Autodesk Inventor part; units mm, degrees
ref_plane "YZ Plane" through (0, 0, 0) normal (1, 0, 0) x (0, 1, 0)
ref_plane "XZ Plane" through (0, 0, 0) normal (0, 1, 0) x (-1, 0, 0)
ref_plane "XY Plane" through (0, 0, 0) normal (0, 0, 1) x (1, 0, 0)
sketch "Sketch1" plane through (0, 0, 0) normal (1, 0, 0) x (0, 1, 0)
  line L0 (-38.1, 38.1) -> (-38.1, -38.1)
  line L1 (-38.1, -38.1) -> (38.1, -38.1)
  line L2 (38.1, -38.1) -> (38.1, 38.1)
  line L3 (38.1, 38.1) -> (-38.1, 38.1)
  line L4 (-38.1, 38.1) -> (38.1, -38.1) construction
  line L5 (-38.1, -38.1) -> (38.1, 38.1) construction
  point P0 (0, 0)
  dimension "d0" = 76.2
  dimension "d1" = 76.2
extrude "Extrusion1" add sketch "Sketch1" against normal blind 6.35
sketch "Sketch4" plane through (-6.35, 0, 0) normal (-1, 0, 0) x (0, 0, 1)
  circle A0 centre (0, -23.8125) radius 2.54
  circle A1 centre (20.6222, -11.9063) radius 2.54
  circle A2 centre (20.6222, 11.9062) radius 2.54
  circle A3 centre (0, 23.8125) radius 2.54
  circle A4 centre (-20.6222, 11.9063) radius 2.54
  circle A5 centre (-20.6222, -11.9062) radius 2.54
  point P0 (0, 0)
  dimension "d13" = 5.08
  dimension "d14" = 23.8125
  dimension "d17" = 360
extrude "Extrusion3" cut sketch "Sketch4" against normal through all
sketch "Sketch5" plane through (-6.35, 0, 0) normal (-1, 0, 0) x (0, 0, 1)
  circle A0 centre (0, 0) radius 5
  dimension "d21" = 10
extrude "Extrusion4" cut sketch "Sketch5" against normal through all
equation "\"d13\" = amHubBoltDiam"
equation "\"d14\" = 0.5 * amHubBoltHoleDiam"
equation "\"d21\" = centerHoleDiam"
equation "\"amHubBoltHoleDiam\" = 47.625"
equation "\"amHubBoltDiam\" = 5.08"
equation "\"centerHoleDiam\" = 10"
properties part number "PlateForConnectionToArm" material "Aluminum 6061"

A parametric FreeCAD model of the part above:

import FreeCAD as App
import Part
import Sketcher

V = App.Vector
Q = App.Units.Quantity

doc = App.newDocument("Part")
params = doc.addObject("Spreadsheet::Sheet", "Params")
for row, (alias, value) in enumerate([
    ("sketch1_width", "3 in"),
    ("pad1_length", "0.25 in"),
    ("sketch2_diameter", "0.2 in"),
], start=1):
    params.set(f"A{row}", alias)
    params.set(f"B{row}", "=" + value)
    params.setAlias(f"B{row}", alias)

body = doc.addObject("PartDesign::Body", "Body")

sketch1 = body.newObject("Sketcher::SketchObject", "Sketch")
sketch1.AttachmentSupport = (doc.getObject("YZ_Plane"), [""])
sketch1.MapMode = "FlatFace"
sketch1.addGeometry(Part.LineSegment(V(38, 38, 0), V(-38, 38, 0)), False)
sketch1.addGeometry(Part.LineSegment(V(-38, 38, 0), V(-38, -38, 0)), False)
sketch1.addGeometry(Part.LineSegment(V(-38, -38, 0), V(38, -38, 0)), False)
sketch1.addGeometry(Part.LineSegment(V(38, -38, 0), V(38, 38, 0)), False)
sketch1.addConstraint(Sketcher.Constraint("Coincident", 0, 2, 1, 1))
sketch1.addConstraint(Sketcher.Constraint("Coincident", 1, 2, 2, 1))
sketch1.addConstraint(Sketcher.Constraint("Coincident", 2, 2, 3, 1))
sketch1.addConstraint(Sketcher.Constraint("Coincident", 3, 2, 0, 1))
sketch1.addConstraint(Sketcher.Constraint("Horizontal", 0))
sketch1.addConstraint(Sketcher.Constraint("Vertical", 1))
sketch1.addConstraint(Sketcher.Constraint("Horizontal", 2))
sketch1.addConstraint(Sketcher.Constraint("Vertical", 3))
sketch1.addConstraint(Sketcher.Constraint("Symmetric", 0, 2, 2, 2, -1, 1))
sketch1.addConstraint(Sketcher.Constraint("Equal", 2, 1))
sketch1.addConstraint(Sketcher.Constraint("DistanceX", 0, 2, 0, 1, Q("3 in")))
sketch1.setExpression("Constraints[10]", "Params.sketch1_width")
pad1 = body.newObject("PartDesign::Pad", "Pad")
pad1.Profile = sketch1
pad1.setExpression("Length", "Params.pad1_length")
pad1.Reversed = True

sketch2 = body.newObject("Sketcher::SketchObject", "Sketch001")
sketch2.AttachmentSupport = (doc.getObject("YZ_Plane"), [""])
sketch2.MapMode = "FlatFace"
sketch2.AttachmentOffset = App.Placement(V(0, 0, -0.25 * 25.4), App.Rotation())
sketch2.addGeometry(Part.Circle(V(-23.8, 0, 0), V(0, 0, 1), 2.5), False)
sketch2.addGeometry(Part.Circle(V(-11.9, 20.6, 0), V(0, 0, 1), 2.5), False)
sketch2.addGeometry(Part.Circle(V(11.9, 20.6, 0), V(0, 0, 1), 2.5), False)
sketch2.addGeometry(Part.Circle(V(23.8, 0, 0), V(0, 0, 1), 2.5), False)
sketch2.addGeometry(Part.Circle(V(11.9, -20.6, 0), V(0, 0, 1), 2.5), False)
sketch2.addGeometry(Part.Circle(V(-11.9, -20.6, 0), V(0, 0, 1), 2.5), False)
sketch2.addConstraint(Sketcher.Constraint("Equal", 0, 1))
sketch2.addConstraint(Sketcher.Constraint("Equal", 1, 2))
sketch2.addConstraint(Sketcher.Constraint("Equal", 2, 3))
sketch2.addConstraint(Sketcher.Constraint("Equal", 3, 4))
sketch2.addConstraint(Sketcher.Constraint("Equal", 4, 5))
sketch2.addConstraint(Sketcher.Constraint("Symmetric", 0, 3, 3, 3, -1, 1))
sketch2.addConstraint(Sketcher.Constraint("Symmetric", 1, 3, 4, 3, -1, 1))
sketch2.addConstraint(Sketcher.Constraint("Symmetric", 2, 3, 5, 3, -1, 1))
sketch2.addConstraint(Sketcher.Constraint("Symmetric", 1, 3, 2, 3, -2))
sketch2.addConstraint(Sketcher.Constraint("PointOnObject", 0, 3, -1))
sketch2.addConstraint(Sketcher.Constraint("Diameter", 0, Q("0.2 in")))
sketch2.addConstraint(Sketcher.Constraint("DistanceX", 0, 3, -1, 1, Q("0.9375 in")))
sketch2.addConstraint(Sketcher.Constraint("DistanceX", 1, 3, 2, 3, Q("0.9375 in")))
sketch2.addConstraint(Sketcher.Constraint("DistanceY", -1, 1, 1, 3, Q("0.8119 in")))
sketch2.setExpression("Constraints[10]", "Params.sketch2_diameter")
pocket1 = body.newObject("PartDesign::Pocket", "Pocket")
pocket1.Profile = sketch2
pocket1.Type = "ThroughAll"
pocket1.Reversed = True

sketch3 = body.newObject("Sketcher::SketchObject", "Sketch002")
sketch3.AttachmentSupport = (doc.getObject("YZ_Plane"), [""])
sketch3.MapMode = "FlatFace"
sketch3.AttachmentOffset = App.Placement(V(0, 0, -0.25 * 25.4), App.Rotation())
sketch3.addGeometry(Part.Circle(V(0, 0, 0), V(0, 0, 1), 5), False)
sketch3.addConstraint(Sketcher.Constraint("Coincident", 0, 3, -1, 1))
sketch3.addConstraint(Sketcher.Constraint("Diameter", 0, Q("0.3937 in")))
pocket2 = body.newObject("PartDesign::Pocket", "Pocket001")
pocket2.Profile = sketch3
pocket2.Type = "ThroughAll"
pocket2.Reversed = True

doc.recompute()
